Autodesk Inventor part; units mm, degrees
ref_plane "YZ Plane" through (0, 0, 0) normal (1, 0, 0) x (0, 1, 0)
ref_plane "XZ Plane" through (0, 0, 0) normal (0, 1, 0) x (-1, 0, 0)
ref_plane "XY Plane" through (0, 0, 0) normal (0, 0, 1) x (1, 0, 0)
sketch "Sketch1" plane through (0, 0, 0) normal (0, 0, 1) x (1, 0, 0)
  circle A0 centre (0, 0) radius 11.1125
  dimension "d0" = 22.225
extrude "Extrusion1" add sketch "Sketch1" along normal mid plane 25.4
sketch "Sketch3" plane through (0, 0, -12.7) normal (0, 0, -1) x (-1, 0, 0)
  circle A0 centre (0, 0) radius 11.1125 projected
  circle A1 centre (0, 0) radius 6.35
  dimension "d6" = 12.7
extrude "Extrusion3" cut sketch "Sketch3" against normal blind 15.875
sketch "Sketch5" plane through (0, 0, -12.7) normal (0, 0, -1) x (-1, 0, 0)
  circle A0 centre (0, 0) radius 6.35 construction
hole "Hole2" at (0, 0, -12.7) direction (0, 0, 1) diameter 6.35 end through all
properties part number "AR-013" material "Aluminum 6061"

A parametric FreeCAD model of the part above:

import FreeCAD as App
import Part
import Sketcher
Q = App.Units.Quantity

doc = App.newDocument("Part")
body = doc.addObject("PartDesign::Body", "Body")

sketch1 = body.newObject("Sketcher::SketchObject", "Sketch")
sketch1.AttachmentSupport = (doc.getObject("XY_Plane"), [""])
sketch1.MapMode = "FlatFace"
sketch1.addGeometry(Part.Circle(App.Vector(0, 0, 0), App.Vector(0, 0, 1), 11.1125), False)
sketch1.addConstraint([
    Sketcher.Constraint("Coincident", 0, 3, -1, 1),
    Sketcher.Constraint("Diameter", 0, Q("0.875 in")),
])
pad1 = body.newObject("PartDesign::Pad", "Pad")
pad1.Profile = sketch1
pad1.Length = Q("1 in")
pad1.Midplane = True

sketch2 = body.newObject("Sketcher::SketchObject", "Sketch001")
sketch2.AttachmentSupport = (doc.getObject("XY_Plane"), [""])
sketch2.MapMode = "FlatFace"
sketch2.AttachmentOffset = App.Placement(App.Vector(0, 0, -0.5 * 25.4), App.Rotation())
sketch2.addGeometry([
    Part.Circle(App.Vector(0, 0, 0), App.Vector(0, 0, 1), 11.1125),
    Part.Circle(App.Vector(0, 0, 0), App.Vector(0, 0, 1), 6.35),
], False)
sketch2.addConstraint([
    Sketcher.Constraint("Coincident", 0, 3, -1, 1),
    Sketcher.Constraint("Coincident", 1, 3, -1, 1),
    Sketcher.Constraint("Diameter", 1, Q("0.5 in")),
    Sketcher.Constraint("Diameter", 0, Q("0.875 in")),
])
pocket1 = body.newObject("PartDesign::Pocket", "Pocket")
pocket1.Profile = sketch2
pocket1.Length = Q("0.625 in")
pocket1.Reversed = True

sketch3 = body.newObject("Sketcher::SketchObject", "Sketch002")
sketch3.AttachmentSupport = (doc.getObject("XY_Plane"), [""])
sketch3.MapMode = "FlatFace"
sketch3.AttachmentOffset = App.Placement(App.Vector(0, 0, -0.5 * 25.4), App.Rotation())
sketch3.addGeometry(Part.Circle(App.Vector(0, 0, 0), App.Vector(0, 0, 1), 3.175), False)
sketch3.addConstraint([
    Sketcher.Constraint("Coincident", 0, 3, -1, 1),
    Sketcher.Constraint("Diameter", 0, Q("0.25 in")),
])
doc.recompute()
hole = body.newObject("PartDesign::Hole", "Hole")
hole.Profile = sketch3
hole.ThreadType = "None"
hole.Diameter = Q("0.25 in")
hole.DepthType = "ThroughAll"
hole.Reversed = True

doc.recompute()
